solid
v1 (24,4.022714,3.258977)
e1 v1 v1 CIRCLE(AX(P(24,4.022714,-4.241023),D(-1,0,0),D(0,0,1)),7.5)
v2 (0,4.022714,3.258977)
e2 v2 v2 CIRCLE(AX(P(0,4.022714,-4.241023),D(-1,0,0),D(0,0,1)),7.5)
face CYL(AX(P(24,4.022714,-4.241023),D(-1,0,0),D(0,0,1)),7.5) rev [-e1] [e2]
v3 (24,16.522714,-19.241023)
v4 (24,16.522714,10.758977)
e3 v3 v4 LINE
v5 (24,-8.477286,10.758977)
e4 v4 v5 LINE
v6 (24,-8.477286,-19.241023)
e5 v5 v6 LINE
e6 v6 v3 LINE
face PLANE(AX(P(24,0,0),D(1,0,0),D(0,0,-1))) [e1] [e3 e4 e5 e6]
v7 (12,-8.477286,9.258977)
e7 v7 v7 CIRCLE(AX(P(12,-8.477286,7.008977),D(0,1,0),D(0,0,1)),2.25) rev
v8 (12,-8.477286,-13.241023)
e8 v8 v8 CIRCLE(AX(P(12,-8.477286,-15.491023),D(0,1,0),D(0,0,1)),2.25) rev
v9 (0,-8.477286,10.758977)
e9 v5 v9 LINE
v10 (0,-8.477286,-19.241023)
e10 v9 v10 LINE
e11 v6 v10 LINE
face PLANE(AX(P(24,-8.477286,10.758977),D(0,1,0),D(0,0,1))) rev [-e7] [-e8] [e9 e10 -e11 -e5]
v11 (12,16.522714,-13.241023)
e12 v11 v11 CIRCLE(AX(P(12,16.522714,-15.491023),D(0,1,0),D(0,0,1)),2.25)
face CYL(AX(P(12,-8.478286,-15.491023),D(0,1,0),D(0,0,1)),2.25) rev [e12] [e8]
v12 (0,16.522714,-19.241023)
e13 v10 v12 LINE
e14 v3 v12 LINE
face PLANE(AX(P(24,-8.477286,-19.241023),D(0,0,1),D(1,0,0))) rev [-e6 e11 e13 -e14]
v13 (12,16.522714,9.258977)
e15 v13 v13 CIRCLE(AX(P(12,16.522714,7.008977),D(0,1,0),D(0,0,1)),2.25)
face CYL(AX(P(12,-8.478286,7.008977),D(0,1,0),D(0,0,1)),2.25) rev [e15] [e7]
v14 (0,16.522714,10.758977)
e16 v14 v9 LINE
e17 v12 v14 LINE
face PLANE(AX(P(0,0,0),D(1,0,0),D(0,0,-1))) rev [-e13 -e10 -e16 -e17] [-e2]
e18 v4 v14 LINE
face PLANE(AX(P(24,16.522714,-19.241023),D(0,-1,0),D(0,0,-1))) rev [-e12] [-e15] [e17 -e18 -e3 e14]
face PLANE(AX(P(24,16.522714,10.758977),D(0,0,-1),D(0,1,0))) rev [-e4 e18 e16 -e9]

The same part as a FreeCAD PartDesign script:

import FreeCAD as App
import Part
import Sketcher
Q = App.Units.Quantity

doc = App.newDocument("Part")
body = doc.addObject("PartDesign::Body", "Body")

# Sketch on YZ plane
sketch1 = body.newObject("Sketcher::SketchObject", "Sketch")
sketch1.AttachmentSupport = (doc.getObject("YZ_Plane"), [""])
sketch1.MapMode = "FlatFace"
sketch1.addGeometry([
    Part.LineSegment(App.Vector(17, 11, 0), App.Vector(-8, 11, 0)),
    Part.LineSegment(App.Vector(-8, 11, 0), App.Vector(-8, -19, 0)),
    Part.LineSegment(App.Vector(-8, -19, 0), App.Vector(17, -19, 0)),
    Part.LineSegment(App.Vector(17, -19, 0), App.Vector(17, 11, 0)),
], False)
sketch1.addConstraint([
    Sketcher.Constraint("Coincident", 0, 2, 1, 1),
    Sketcher.Constraint("Coincident", 1, 2, 2, 1),
    Sketcher.Constraint("Coincident", 2, 2, 3, 1),
    Sketcher.Constraint("Coincident", 3, 2, 0, 1),
    Sketcher.Constraint("Horizontal", 0),
    Sketcher.Constraint("Vertical", 1),
    Sketcher.Constraint("Horizontal", 2),
    Sketcher.Constraint("Vertical", 3),
    Sketcher.Constraint("DistanceX", 0, 2, 0, 1, Q("25 mm")),
    Sketcher.Constraint("DistanceY", 1, 2, 1, 1, Q("30 mm")),
    Sketcher.Constraint("DistanceX", 0, 2, -1, 1, Q("8.477286 mm")),
    Sketcher.Constraint("DistanceY", -1, 1, 0, 2, Q("10.758977 mm")),
])
pad1 = body.newObject("PartDesign::Pad", "Pad")
pad1.Profile = sketch1
pad1.Length = 24

# Sketch on YZ plane
sketch2 = body.newObject("Sketcher::SketchObject", "Sketch001")
sketch2.AttachmentSupport = (doc.getObject("YZ_Plane"), [""])
sketch2.MapMode = "FlatFace"
sketch2.addGeometry(Part.Circle(App.Vector(4, -4, 0), App.Vector(0, 0, 1), 8), False)
sketch2.addConstraint([
    Sketcher.Constraint("Diameter", 0, Q("15 mm")),
    Sketcher.Constraint("DistanceX", -1, 1, 0, 3, Q("4.022714 mm")),
    Sketcher.Constraint("DistanceY", 0, 3, -1, 1, Q("4.241023 mm")),
])
pocket1 = body.newObject("PartDesign::Pocket", "Pocket")
pocket1.Profile = sketch2
pocket1.Length = 24
pocket1.Reversed = True

# Sketch on XZ plane
sketch3 = body.newObject("Sketcher::SketchObject", "Sketch002")
sketch3.AttachmentSupport = (doc.getObject("XZ_Plane"), [""])
sketch3.MapMode = "FlatFace"
sketch3.AttachmentOffset = App.Placement(App.Vector(0, 0, -16.522714), App.Rotation())
sketch3.addGeometry(Part.Circle(App.Vector(12, -15.5, 0), App.Vector(0, 0, 1), 2.2), False)
sketch3.addConstraint([
    Sketcher.Constraint("Diameter", 0, Q("4.5 mm")),
    Sketcher.Constraint("DistanceX", -1, 1, 0, 3, Q("12 mm")),
    Sketcher.Constraint("DistanceY", 0, 3, -1, 1, Q("15.491023 mm")),
])
pocket2 = body.newObject("PartDesign::Pocket", "Pocket001")
pocket2.Profile = sketch3
pocket2.Type = "UpToFirst"
pocket2.Reversed = True

# Sketch on XZ plane
sketch4 = body.newObject("Sketcher::SketchObject", "Sketch003")
sketch4.AttachmentSupport = (doc.getObject("XZ_Plane"), [""])
sketch4.MapMode = "FlatFace"
sketch4.AttachmentOffset = App.Placement(App.Vector(0, 0, -16.522714), App.Rotation())
sketch4.addGeometry(Part.Circle(App.Vector(12, 7, 0), App.Vector(0, 0, 1), 2.2), False)
sketch4.addConstraint([
    Sketcher.Constraint("Diameter", 0, Q("4.5 mm")),
    Sketcher.Constraint("DistanceX", -1, 1, 0, 3, Q("12 mm")),
    Sketcher.Constraint("DistanceY", -1, 1, 0, 3, Q("7.008977 mm")),
])
pocket3 = body.newObject("PartDesign::Pocket", "Pocket002")
pocket3.Profile = sketch4
pocket3.Type = "UpToFirst"
pocket3.Reversed = True

doc.recompute()
